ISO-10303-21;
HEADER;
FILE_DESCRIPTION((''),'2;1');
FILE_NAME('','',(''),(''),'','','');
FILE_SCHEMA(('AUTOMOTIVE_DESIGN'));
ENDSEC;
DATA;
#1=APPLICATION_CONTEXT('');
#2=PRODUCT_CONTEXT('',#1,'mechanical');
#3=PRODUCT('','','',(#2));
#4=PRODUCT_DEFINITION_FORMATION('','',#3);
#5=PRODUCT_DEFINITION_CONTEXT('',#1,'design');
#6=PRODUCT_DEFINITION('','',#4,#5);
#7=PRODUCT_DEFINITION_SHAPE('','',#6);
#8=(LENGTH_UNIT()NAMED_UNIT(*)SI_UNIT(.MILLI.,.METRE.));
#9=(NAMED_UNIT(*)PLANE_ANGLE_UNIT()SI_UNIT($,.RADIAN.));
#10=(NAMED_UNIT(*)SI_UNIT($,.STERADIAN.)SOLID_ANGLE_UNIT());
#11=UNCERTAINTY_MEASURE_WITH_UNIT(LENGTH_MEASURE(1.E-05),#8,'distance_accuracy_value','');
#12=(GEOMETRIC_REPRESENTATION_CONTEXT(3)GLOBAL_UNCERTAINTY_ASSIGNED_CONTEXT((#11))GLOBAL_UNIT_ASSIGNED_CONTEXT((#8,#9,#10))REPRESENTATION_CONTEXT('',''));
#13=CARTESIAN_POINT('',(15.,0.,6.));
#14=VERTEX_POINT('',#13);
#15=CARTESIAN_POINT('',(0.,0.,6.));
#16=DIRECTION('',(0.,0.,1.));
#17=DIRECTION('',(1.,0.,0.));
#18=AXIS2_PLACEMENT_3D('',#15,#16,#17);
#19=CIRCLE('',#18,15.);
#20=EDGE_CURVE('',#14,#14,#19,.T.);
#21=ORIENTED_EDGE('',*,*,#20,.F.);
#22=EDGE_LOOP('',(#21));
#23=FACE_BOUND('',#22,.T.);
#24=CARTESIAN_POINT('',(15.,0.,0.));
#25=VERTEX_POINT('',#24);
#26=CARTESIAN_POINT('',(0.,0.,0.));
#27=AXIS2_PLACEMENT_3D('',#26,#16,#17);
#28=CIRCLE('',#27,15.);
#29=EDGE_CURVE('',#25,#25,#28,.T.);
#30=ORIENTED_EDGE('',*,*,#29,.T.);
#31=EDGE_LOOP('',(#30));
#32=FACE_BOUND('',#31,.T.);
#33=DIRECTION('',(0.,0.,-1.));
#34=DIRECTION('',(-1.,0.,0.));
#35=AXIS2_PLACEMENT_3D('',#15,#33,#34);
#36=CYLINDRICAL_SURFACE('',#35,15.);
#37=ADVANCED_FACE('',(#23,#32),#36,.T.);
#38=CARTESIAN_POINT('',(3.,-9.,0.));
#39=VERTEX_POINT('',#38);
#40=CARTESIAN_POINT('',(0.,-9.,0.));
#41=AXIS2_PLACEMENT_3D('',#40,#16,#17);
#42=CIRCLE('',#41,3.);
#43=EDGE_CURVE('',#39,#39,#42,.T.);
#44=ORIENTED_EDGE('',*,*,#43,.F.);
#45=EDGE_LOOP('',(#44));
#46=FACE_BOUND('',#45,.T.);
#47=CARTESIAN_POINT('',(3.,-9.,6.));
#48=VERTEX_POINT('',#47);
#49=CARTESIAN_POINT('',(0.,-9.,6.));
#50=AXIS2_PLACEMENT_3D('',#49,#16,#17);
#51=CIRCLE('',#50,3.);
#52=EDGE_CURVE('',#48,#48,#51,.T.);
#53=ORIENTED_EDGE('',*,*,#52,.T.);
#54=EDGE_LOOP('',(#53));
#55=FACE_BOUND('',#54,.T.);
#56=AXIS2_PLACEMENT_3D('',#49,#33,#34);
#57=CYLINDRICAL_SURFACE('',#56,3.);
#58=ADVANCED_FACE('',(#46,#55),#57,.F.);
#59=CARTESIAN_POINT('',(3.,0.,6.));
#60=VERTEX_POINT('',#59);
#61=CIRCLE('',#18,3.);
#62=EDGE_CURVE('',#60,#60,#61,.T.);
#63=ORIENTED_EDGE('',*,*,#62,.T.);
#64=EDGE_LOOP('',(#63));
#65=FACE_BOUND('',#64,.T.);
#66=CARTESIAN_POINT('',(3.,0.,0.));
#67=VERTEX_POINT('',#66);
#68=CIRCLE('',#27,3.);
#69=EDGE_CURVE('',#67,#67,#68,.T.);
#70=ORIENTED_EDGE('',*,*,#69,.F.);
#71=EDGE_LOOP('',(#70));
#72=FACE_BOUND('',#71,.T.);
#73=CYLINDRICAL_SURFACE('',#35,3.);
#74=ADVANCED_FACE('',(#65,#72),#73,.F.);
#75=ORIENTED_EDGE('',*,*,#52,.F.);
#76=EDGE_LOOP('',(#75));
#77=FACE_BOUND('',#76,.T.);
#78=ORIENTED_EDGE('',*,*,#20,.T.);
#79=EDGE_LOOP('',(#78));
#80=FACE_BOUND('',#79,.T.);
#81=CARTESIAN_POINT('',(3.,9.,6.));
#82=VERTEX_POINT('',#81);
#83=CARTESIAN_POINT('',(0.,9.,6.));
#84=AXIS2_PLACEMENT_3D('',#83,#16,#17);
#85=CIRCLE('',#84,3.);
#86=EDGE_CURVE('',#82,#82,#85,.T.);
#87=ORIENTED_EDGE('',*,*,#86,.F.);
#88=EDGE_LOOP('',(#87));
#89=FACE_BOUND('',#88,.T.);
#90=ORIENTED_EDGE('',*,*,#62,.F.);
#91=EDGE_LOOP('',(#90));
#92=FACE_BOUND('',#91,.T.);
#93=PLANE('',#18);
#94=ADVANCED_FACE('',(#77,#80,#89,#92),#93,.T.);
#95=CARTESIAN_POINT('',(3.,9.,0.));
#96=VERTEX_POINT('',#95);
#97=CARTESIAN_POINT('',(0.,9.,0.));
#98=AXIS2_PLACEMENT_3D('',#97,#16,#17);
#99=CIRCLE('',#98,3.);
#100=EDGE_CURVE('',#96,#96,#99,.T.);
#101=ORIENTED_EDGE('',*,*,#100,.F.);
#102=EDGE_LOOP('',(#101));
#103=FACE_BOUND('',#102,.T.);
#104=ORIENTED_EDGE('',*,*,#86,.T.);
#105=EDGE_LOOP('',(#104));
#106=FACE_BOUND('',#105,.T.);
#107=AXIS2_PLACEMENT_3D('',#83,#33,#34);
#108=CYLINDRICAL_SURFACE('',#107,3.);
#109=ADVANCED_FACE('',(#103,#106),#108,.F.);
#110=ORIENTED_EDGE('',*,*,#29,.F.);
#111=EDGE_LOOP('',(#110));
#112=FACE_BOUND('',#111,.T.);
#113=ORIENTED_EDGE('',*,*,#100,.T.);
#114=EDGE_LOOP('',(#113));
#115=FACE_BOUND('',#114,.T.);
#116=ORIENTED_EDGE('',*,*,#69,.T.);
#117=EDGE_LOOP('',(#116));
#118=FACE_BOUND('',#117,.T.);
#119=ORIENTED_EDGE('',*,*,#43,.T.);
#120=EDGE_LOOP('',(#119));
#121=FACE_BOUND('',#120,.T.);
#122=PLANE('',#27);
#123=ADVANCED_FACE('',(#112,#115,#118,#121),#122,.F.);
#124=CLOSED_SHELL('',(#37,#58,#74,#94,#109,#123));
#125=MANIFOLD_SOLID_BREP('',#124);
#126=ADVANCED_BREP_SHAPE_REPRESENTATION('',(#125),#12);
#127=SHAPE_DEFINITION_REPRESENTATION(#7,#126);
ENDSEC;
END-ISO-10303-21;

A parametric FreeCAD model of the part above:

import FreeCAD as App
import Part
import Sketcher

doc = App.newDocument("Part")
body = doc.addObject("PartDesign::Body", "Body")

# Sketch on XY plane
sketch1 = body.newObject("Sketcher::SketchObject", "Sketch")
sketch1.AttachmentSupport = (doc.getObject("XY_Plane"), [""])
sketch1.MapMode = "FlatFace"
sketch1.addGeometry([
    Part.Circle(App.Vector(0, 0, 0), App.Vector(0, 0, 1), 15),
    Part.Circle(App.Vector(0, -9, 0), App.Vector(0, 0, 1), 3),
    Part.Circle(App.Vector(0, 0, 0), App.Vector(0, 0, 1), 3),
    Part.Circle(App.Vector(0, 9, 0), App.Vector(0, 0, 1), 3),
], False)
sketch1.addConstraint([
    Sketcher.Constraint("Coincident", 0, 3, -1, 1),
    Sketcher.Constraint("Coincident", 2, 3, -1, 1),
    Sketcher.Constraint("Equal", 1, 2),
    Sketcher.Constraint("Equal", 2, 3),
    Sketcher.Constraint("Symmetric", 1, 3, 3, 3, -1, 1),
    Sketcher.Constraint("PointOnObject", 1, 3, -2),
    Sketcher.Constraint("Diameter", 0, 30.0),
    Sketcher.Constraint("Diameter", 1, 6.0),
    Sketcher.Constraint("DistanceY", 1, 3, -1, 1, 9.0),
])
pad1 = body.newObject("PartDesign::Pad", "Pad")
pad1.Profile = sketch1
pad1.Length = 6

doc.recompute()
